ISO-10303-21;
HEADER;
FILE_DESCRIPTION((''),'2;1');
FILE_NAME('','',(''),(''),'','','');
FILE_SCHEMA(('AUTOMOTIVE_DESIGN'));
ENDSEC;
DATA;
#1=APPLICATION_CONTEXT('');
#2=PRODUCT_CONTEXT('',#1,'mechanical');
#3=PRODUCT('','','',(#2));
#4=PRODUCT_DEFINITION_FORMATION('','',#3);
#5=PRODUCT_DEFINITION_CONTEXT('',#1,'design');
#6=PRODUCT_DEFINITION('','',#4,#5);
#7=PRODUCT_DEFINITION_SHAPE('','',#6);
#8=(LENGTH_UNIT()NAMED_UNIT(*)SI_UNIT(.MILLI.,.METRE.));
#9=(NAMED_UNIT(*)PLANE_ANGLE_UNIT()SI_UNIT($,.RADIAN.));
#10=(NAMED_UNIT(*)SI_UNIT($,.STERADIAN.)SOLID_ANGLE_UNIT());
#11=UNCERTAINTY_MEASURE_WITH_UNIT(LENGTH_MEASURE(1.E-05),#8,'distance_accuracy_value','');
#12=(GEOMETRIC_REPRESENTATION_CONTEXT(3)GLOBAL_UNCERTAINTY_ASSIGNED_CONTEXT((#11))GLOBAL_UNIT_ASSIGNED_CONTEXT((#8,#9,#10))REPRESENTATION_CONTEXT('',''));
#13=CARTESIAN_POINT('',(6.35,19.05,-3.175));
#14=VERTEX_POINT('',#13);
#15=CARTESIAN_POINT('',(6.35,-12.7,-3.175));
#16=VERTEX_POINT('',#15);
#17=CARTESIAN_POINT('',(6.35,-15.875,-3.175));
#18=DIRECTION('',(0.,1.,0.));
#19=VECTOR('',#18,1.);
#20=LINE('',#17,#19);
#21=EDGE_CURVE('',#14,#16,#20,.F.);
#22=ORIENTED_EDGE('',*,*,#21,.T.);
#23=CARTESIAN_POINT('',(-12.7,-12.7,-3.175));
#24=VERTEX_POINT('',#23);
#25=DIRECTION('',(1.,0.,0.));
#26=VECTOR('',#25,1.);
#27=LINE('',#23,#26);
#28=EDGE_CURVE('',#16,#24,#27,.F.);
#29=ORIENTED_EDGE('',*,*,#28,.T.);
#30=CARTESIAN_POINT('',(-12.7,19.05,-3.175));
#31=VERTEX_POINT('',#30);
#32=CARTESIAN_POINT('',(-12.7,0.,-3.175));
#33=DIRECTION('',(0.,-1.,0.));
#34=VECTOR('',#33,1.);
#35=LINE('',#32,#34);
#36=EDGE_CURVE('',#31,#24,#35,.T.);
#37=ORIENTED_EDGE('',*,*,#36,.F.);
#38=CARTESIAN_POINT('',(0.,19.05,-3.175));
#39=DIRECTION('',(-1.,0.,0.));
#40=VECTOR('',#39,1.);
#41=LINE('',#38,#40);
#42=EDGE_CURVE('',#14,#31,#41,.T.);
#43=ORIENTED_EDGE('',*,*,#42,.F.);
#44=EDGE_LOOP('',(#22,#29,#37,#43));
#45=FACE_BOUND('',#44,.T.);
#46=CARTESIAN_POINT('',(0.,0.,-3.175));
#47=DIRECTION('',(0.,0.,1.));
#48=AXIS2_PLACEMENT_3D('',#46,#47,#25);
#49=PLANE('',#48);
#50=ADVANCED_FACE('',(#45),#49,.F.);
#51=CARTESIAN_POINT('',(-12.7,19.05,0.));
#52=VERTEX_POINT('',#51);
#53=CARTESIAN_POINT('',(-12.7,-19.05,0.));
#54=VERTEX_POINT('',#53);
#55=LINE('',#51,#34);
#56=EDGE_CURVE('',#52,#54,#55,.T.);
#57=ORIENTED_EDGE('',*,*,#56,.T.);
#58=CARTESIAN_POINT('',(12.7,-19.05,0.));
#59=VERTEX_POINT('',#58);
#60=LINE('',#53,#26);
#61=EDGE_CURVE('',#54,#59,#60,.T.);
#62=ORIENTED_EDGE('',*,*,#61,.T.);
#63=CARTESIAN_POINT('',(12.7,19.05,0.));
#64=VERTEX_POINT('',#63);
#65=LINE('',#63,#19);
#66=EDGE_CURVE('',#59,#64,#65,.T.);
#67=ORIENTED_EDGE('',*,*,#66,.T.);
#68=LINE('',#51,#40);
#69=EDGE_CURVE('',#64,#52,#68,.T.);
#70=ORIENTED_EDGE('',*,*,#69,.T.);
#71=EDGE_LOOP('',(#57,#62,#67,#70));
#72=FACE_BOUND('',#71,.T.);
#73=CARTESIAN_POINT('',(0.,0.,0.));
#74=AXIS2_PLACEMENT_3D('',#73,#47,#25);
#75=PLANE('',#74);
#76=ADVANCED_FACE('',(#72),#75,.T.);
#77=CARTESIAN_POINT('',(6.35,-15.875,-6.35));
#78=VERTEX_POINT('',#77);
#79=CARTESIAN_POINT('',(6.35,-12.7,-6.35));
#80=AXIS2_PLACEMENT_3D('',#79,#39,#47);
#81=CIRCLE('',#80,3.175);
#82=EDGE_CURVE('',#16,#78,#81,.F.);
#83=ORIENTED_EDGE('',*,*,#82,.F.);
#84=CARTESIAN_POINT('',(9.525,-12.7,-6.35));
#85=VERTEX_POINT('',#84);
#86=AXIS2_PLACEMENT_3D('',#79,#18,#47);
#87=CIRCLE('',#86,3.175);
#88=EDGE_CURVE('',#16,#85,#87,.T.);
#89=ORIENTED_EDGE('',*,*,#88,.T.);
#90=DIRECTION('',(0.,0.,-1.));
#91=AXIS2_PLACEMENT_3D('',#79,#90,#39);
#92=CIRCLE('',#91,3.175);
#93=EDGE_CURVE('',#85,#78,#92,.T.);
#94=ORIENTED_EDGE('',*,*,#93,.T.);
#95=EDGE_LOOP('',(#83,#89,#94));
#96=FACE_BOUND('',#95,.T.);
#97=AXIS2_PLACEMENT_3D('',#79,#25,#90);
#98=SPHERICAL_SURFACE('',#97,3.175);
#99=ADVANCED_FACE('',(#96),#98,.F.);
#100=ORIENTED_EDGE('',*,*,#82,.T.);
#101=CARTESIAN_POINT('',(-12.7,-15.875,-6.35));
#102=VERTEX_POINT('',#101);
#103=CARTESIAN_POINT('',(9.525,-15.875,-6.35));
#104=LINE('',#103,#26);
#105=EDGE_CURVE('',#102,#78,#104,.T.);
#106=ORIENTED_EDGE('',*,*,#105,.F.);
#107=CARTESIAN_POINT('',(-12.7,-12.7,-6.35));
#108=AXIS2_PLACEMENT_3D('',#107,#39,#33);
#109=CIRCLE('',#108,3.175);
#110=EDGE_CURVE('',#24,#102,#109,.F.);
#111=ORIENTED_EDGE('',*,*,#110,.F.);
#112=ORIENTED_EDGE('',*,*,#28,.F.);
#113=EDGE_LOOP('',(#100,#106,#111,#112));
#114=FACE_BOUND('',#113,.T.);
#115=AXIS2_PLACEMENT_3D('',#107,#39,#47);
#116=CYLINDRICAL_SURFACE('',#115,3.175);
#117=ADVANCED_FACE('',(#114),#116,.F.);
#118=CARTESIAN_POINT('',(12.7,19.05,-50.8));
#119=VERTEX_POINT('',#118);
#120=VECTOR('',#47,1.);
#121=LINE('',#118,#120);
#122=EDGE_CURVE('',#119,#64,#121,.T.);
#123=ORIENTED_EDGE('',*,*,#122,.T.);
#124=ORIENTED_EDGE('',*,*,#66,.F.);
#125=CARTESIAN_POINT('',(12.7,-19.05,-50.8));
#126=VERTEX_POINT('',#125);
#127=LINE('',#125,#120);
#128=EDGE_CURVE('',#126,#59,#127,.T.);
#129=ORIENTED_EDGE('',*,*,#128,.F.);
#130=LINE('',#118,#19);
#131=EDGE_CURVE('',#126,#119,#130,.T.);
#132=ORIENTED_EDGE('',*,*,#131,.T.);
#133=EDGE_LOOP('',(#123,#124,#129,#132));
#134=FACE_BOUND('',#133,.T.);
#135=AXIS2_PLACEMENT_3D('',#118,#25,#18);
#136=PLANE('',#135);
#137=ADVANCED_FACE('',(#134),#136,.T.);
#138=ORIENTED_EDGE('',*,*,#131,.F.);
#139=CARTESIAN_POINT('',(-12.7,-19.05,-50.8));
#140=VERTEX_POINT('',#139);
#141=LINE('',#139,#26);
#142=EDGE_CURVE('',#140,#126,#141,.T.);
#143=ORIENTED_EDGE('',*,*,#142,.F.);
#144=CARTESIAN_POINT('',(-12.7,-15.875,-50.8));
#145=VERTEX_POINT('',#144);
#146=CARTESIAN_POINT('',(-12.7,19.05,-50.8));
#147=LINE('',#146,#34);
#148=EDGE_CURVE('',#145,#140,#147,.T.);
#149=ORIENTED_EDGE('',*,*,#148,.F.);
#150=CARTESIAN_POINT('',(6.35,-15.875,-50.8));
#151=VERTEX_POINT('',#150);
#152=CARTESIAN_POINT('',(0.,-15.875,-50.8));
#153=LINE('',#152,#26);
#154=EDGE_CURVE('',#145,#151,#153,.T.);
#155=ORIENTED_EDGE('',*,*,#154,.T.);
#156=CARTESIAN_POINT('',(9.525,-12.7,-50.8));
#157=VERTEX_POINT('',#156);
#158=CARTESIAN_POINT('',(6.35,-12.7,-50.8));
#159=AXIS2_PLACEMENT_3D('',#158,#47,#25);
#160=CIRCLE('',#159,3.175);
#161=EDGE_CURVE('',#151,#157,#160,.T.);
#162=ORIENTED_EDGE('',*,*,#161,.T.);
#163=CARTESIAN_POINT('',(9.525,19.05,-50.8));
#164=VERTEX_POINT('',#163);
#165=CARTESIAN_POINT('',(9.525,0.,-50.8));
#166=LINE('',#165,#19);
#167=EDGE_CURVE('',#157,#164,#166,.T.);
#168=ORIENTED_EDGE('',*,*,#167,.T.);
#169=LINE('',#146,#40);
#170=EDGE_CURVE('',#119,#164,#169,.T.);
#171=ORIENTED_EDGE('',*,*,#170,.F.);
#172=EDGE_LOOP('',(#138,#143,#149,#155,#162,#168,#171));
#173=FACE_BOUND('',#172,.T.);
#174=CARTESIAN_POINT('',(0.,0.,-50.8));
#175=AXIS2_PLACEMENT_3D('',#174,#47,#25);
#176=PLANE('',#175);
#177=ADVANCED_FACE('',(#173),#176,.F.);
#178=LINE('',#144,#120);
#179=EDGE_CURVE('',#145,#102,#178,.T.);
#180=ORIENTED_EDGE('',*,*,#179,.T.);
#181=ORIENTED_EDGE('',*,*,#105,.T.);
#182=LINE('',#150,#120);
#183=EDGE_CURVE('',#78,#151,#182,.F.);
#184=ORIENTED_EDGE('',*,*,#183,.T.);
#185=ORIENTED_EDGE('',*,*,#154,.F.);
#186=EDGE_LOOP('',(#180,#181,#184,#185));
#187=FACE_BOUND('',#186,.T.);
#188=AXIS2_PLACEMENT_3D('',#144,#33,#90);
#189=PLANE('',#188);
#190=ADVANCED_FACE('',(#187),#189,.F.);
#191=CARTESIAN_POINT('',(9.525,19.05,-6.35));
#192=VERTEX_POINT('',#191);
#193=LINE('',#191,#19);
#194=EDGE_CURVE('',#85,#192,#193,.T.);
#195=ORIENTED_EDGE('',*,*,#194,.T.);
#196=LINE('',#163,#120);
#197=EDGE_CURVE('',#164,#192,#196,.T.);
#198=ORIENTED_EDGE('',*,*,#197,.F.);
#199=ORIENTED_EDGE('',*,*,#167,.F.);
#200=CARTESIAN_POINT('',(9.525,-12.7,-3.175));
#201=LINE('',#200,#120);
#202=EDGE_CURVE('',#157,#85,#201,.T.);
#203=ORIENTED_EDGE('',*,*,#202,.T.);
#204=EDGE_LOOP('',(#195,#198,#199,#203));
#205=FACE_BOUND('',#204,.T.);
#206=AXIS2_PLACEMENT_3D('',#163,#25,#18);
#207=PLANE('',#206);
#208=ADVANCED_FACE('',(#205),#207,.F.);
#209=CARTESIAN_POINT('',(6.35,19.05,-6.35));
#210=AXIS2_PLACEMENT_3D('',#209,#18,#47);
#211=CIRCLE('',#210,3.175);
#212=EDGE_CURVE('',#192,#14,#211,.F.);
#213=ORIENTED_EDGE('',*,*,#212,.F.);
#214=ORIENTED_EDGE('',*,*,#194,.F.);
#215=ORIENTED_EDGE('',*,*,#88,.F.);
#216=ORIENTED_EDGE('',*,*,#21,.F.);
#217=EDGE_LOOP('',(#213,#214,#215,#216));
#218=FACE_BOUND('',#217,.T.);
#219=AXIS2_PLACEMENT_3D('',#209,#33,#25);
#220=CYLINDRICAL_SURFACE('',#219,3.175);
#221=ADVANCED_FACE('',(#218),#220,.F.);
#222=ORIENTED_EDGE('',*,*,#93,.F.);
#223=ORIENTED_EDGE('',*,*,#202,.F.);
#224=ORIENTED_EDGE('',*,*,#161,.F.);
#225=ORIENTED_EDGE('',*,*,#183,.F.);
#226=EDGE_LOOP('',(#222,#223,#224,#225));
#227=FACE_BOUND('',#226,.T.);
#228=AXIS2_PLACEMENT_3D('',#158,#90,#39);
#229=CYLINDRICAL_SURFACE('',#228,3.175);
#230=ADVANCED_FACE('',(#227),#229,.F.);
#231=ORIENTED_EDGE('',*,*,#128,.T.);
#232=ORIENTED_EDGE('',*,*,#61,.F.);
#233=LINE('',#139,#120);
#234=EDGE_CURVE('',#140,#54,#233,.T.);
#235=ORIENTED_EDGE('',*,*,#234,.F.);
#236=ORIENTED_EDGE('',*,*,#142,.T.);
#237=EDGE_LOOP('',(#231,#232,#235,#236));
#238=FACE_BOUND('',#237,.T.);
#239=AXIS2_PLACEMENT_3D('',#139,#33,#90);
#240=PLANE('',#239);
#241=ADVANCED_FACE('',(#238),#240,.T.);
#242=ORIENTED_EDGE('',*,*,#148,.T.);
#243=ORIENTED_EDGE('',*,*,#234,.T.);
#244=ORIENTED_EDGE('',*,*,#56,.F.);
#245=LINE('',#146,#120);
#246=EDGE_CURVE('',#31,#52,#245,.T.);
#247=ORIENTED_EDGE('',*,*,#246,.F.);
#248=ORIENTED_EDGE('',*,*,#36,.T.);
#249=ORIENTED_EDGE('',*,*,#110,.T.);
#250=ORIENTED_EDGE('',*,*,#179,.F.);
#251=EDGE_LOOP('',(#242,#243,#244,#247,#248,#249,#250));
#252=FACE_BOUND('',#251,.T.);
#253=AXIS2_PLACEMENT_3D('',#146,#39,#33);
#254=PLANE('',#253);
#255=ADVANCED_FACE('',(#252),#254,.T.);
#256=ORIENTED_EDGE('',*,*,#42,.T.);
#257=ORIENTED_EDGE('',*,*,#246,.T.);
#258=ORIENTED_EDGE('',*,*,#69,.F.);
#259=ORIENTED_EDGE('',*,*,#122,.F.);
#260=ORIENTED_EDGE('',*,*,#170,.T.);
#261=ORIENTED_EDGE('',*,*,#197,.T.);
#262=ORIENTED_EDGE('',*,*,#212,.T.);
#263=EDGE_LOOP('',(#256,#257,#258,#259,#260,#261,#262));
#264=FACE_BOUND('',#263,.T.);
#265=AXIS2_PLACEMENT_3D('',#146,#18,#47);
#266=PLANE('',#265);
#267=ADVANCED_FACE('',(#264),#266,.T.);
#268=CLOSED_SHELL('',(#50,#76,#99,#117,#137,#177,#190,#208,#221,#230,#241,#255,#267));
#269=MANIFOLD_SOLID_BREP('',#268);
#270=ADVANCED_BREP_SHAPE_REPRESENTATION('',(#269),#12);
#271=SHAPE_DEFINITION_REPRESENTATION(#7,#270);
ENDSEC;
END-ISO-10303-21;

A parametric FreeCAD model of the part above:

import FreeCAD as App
import Part
import Sketcher

V = App.Vector
Q = App.Units.Quantity


def edges_at(feature, points):
    """Names of the edges that pass closest to the given points."""
    edges = feature.Shape.Edges
    near = lambda p: min(range(len(edges)), key=lambda i: edges[i].distToShape(Part.Vertex(*p))[0])
    return sorted({f"Edge{near(p) + 1}" for p in points})


def faces_at(feature, points):
    """Names of the faces that lie closest to the given points."""
    faces = feature.Shape.Faces
    near = lambda p: min(range(len(faces)), key=lambda i: faces[i].distToShape(Part.Vertex(*p))[0])
    return sorted({f"Face{near(p) + 1}" for p in points})


def add_polygon(sketch, points):
    """Adds a closed chain of lines whose ends are joined by coincident constraints."""
    first, n = sketch.GeometryCount, len(points)
    for a, b in zip(points, points[1:] + points[:1]):
        sketch.addGeometry(Part.LineSegment(App.Vector(*a, 0), App.Vector(*b, 0)), False)
    for i in range(n):
        sketch.addConstraint(Sketcher.Constraint("Coincident", first + i, 2, first + (i + 1) % n, 1))

doc = App.newDocument("Part")
body = doc.addObject("PartDesign::Body", "Body")

# Sketch on XY plane
sketch1 = body.newObject("Sketcher::SketchObject", "Sketch")
sketch1.AttachmentSupport = (doc.getObject("XY_Plane"), [""])
sketch1.MapMode = "FlatFace"
add_polygon(sketch1, [(-13, 19), (-13, -19), (13, -19), (13, 19)])  # lines 0-3
sketch1.addConstraint(Sketcher.Constraint("Vertical", 0))
sketch1.addConstraint(Sketcher.Constraint("Horizontal", 1))
sketch1.addConstraint(Sketcher.Constraint("Vertical", 2))
sketch1.addConstraint(Sketcher.Constraint("Horizontal", 3))
sketch1.addConstraint(Sketcher.Constraint("Symmetric", 0, 2, 2, 2, -1, 1))
sketch1.addConstraint(Sketcher.Constraint("DistanceX", 1, 1, 1, 2, Q("1 in")))
sketch1.addConstraint(Sketcher.Constraint("DistanceY", 0, 2, 0, 1, Q("1.5 in")))
pad1 = body.newObject("PartDesign::Pad", "Pad")
pad1.Profile = sketch1
pad1.Length = Q("2 in")
pad1.Reversed = True
doc.recompute()

thickness = body.newObject("PartDesign::Thickness", "Thickness")
thickness.Base = (pad1, faces_at(pad1, [(0, 0, -50.8), (-12.7, 0, -25.4), (0, 19.05, -25.4)]))
thickness.Value = Q("0.125 in")
thickness.Reversed = True
thickness.Join = "Intersection"
doc.recompute()

fillet = body.newObject("PartDesign::Fillet", "Fillet")
fillet.Base = (thickness, edges_at(thickness, [(9.525, -15.875, -26.988), (9.525, 1.587, -3.175), (-1.587, -15.875, -3.175)]))
fillet.Radius = Q("0.125 in")

doc.recompute()
